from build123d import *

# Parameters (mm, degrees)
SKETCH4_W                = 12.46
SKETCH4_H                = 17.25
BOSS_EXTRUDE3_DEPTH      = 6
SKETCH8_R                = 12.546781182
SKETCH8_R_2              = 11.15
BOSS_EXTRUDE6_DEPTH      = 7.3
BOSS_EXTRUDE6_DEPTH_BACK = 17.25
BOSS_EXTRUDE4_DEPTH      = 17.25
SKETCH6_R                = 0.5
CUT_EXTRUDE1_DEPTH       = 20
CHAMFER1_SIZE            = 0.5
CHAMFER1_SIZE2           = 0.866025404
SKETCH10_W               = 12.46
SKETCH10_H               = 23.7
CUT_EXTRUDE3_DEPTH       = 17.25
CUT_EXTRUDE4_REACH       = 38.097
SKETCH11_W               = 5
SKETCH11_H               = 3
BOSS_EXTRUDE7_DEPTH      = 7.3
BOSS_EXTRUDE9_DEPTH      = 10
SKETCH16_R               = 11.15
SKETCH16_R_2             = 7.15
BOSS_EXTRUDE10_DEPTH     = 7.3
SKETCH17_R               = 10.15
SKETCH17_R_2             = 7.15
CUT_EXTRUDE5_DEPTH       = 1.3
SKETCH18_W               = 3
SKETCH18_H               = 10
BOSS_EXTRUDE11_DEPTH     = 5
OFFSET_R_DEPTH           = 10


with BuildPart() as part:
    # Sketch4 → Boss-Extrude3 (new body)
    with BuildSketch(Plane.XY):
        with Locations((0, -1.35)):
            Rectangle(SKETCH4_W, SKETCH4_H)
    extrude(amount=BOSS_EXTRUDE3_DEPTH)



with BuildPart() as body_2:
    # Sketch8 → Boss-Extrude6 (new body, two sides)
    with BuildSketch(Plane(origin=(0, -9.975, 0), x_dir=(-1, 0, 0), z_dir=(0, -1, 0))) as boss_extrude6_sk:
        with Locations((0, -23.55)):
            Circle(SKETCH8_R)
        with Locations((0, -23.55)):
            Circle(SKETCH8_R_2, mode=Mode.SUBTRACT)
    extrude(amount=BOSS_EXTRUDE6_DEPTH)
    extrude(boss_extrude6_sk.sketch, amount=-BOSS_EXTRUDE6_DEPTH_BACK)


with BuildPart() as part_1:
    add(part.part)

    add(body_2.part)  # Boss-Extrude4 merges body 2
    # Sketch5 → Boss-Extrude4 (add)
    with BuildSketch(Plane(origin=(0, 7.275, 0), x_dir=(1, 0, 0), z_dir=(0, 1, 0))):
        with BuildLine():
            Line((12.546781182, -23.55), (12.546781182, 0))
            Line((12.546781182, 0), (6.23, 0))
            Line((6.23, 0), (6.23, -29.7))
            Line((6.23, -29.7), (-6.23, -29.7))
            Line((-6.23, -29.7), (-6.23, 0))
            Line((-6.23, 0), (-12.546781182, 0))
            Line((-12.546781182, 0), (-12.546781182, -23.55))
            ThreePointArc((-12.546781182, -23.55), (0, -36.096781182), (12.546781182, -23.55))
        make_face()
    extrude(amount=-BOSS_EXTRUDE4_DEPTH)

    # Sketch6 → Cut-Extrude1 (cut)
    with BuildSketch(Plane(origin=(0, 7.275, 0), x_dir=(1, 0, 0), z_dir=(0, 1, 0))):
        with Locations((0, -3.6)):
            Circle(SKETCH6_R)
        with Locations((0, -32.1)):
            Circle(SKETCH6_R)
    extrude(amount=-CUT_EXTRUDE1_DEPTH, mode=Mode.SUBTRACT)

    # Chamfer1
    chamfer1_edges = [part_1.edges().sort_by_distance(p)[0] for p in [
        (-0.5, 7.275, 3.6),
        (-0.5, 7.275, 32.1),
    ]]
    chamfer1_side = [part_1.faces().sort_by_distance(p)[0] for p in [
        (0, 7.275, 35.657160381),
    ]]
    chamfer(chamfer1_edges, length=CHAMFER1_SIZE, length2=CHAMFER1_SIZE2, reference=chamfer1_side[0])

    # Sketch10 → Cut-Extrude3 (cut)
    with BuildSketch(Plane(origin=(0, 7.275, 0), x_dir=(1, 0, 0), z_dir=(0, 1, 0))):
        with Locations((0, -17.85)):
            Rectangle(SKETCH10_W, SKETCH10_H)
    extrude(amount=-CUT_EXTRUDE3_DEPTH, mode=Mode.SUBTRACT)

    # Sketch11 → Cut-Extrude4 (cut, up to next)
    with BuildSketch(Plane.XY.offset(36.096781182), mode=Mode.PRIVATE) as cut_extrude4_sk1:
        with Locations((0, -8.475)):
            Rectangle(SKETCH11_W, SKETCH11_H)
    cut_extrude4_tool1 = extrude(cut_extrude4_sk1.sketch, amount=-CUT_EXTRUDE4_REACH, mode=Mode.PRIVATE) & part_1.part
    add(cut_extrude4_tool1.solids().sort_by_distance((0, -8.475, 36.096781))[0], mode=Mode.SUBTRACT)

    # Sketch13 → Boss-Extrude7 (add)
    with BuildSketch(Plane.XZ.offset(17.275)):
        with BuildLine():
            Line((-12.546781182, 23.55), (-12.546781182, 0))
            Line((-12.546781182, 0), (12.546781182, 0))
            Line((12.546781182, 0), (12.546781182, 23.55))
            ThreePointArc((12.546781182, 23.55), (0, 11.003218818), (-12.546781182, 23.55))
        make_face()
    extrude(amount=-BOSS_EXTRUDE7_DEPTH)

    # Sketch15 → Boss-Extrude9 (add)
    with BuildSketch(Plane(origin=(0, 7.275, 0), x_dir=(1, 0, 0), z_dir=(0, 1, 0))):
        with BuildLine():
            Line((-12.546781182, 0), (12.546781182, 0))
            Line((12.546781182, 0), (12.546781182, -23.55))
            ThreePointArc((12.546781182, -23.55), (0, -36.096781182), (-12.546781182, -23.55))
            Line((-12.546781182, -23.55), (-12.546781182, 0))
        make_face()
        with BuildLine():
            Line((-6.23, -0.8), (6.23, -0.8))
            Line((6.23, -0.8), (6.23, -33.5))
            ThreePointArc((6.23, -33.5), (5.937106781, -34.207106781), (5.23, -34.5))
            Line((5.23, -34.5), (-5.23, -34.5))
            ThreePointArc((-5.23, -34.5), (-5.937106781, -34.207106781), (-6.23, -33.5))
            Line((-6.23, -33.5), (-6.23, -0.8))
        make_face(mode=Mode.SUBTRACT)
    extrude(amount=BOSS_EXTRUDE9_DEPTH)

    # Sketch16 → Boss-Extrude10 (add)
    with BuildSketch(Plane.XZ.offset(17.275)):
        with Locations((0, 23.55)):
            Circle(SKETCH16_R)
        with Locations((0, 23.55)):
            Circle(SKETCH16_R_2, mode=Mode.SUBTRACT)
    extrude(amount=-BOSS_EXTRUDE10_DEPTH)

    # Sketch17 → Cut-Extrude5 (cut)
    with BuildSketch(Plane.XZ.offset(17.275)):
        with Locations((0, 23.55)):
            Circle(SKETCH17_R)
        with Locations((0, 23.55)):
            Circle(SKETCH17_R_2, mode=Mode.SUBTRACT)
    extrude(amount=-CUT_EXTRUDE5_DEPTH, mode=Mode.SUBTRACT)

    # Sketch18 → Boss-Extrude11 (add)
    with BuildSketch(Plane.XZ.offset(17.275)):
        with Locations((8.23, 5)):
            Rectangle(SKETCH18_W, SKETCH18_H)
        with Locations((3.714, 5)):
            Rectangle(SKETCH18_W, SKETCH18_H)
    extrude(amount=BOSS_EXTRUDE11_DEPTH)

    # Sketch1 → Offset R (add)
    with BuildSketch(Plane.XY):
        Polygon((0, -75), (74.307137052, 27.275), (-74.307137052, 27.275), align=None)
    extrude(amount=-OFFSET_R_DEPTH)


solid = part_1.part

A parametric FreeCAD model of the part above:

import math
import FreeCAD as App
import Part
import Sketcher

V = App.Vector
Q = App.Units.Quantity


def edges_at(feature, points):
    """Names of the edges that pass closest to the given points."""
    edges = feature.Shape.Edges
    near = lambda p: min(range(len(edges)), key=lambda i: edges[i].distToShape(Part.Vertex(*p))[0])
    return sorted({f"Edge{near(p) + 1}" for p in points})


def add_polygon(sketch, points):
    """Adds a closed chain of lines whose ends are joined by coincident constraints."""
    first, n = sketch.GeometryCount, len(points)
    for a, b in zip(points, points[1:] + points[:1]):
        sketch.addGeometry(Part.LineSegment(App.Vector(*a, 0), App.Vector(*b, 0)), False)
    for i in range(n):
        sketch.addConstraint(Sketcher.Constraint("Coincident", first + i, 2, first + (i + 1) % n, 1))

doc = App.newDocument("Part")
body = doc.addObject("PartDesign::Body", "Body")

# Sketch on XY plane
sketch1 = doc.addObject("Sketcher::SketchObject", "Sketch")
body.addObject(sketch1)
sketch1.AttachmentSupport = (doc.XY_Plane, [""])
sketch1.MapMode = "FlatFace"
add_polygon(sketch1, [(-6, 7), (-6, -10), (6, -10), (6, 7)])  # lines 0-3
sketch1.addConstraint([
    Sketcher.Constraint("Vertical", 0),
    Sketcher.Constraint("Horizontal", 1),
    Sketcher.Constraint("Vertical", 2),
    Sketcher.Constraint("Horizontal", 3),
    Sketcher.Constraint("DistanceX", 1, 1, 1, 2, 12.46),
    Sketcher.Constraint("DistanceY", 0, 2, 0, 1, 17.25),
    Sketcher.Constraint("DistanceX", 0, 2, -1, 1, 6.23),
    Sketcher.Constraint("DistanceY", 0, 2, -1, 1, 9.975),
])
pad1 = doc.addObject("PartDesign::Pad", "Pad")
body.addObject(pad1)
pad1.Profile = sketch1
pad1.Length = 6
body2 = doc.addObject("PartDesign::Body", "Body001")

# Sketch on XZ plane
sketch2 = doc.addObject("Sketcher::SketchObject", "Sketch001")
body2.addObject(sketch2)
sketch2.AttachmentSupport = (doc.getObject("XZ_Plane001"), [""])
sketch2.MapMode = "FlatFace"
sketch2.AttachmentOffset = App.Placement(V(0, 0, 9.975), App.Rotation())
sketch2.addGeometry([
    Part.Circle(V(0, 24, 0), V(0, 0, 1), 13),
    Part.Circle(V(0, 24, 0), V(0, 0, 1), 11),
], False)
sketch2.addConstraint([
    Sketcher.Constraint("Coincident", 1, 3, 0, 3),
    Sketcher.Constraint("PointOnObject", 0, 3, -2),
    Sketcher.Constraint("Diameter", 1, 22.3),
    Sketcher.Constraint("DistanceY", -1, 1, 0, 3, 23.55),
    Sketcher.Constraint("Diameter", 0, 25.093562),
])
pad2 = doc.addObject("PartDesign::Pad", "Pad001")
body2.addObject(pad2)
pad2.Profile = sketch2
pad2.Type = "TwoLengths"
pad2.Length = 7.3
pad2.Length2 = 17.25
body.AllowCompound = True
doc.recompute()

boolean = doc.addObject("PartDesign::Boolean", "Boolean")
body.addObject(boolean)
boolean.Type = "Fuse"
boolean.addObjects([body2])

# Sketch on XZ plane
sketch3 = doc.addObject("Sketcher::SketchObject", "Sketch002")
body.addObject(sketch3)
sketch3.AttachmentSupport = (doc.XZ_Plane, [""])
sketch3.MapMode = "FlatFace"
sketch3.AttachmentOffset = App.Placement(V(0, 0, -7.275), App.Rotation())
sketch3.addGeometry([
    Part.LineSegment(V(13, 24, 0), V(13, 0, 0)),  # 0
    Part.LineSegment(V(13, 0, 0), V(6, 0, 0)),  # 1
    Part.LineSegment(V(6, 0, 0), V(6, 30, 0)),  # 2
    Part.LineSegment(V(6, 30, 0), V(-6, 30, 0)),  # 3
    Part.LineSegment(V(-6, 30, 0), V(-6, 0, 0)),  # 4
    Part.LineSegment(V(-6, 0, 0), V(-13, 0, 0)),  # 5
    Part.LineSegment(V(-13, 0, 0), V(-13, 24, 0)),  # 6
    Part.ArcOfCircle(Part.Circle(V(0, 24, 0), V(0, 0, 1), 13), math.radians(0), math.radians(180)),  # 7
], False)
sketch3.addConstraint([
    Sketcher.Constraint("Coincident", 0, 2, 1, 1),
    Sketcher.Constraint("Coincident", 1, 2, 2, 1),
    Sketcher.Constraint("Coincident", 2, 2, 3, 1),
    Sketcher.Constraint("Coincident", 3, 2, 4, 1),
    Sketcher.Constraint("Coincident", 4, 2, 5, 1),
    Sketcher.Constraint("Coincident", 5, 2, 6, 1),
    Sketcher.Constraint("Tangent", 6, 2, 7, 2),
    Sketcher.Constraint("Tangent", 7, 1, 0, 1),
    Sketcher.Constraint("Vertical", 0),
    Sketcher.Constraint("Horizontal", 1),
    Sketcher.Constraint("Vertical", 2),
    Sketcher.Constraint("Horizontal", 3),
    Sketcher.Constraint("Vertical", 4),
    Sketcher.Constraint("Horizontal", 5),
    Sketcher.Constraint("Vertical", 6),
    Sketcher.Constraint("Symmetric", 1, 2, 4, 2, -1, 1),
    Sketcher.Constraint("Symmetric", 0, 2, 5, 2, -2),
    Sketcher.Constraint("DistanceY", 2, 1, 2, 2, 29.7),
    Sketcher.Constraint("DistanceX", 3, 2, 3, 1, 12.46),
    Sketcher.Constraint("DistanceY", 0, 2, 0, 1, 23.55),
    Sketcher.Constraint("Radius", 7, 12.546781),
])
pad3 = doc.addObject("PartDesign::Pad", "Pad002")
body.addObject(pad3)
pad3.Profile = sketch3
pad3.Length = 17.25

# Sketch on XZ plane
sketch4 = doc.addObject("Sketcher::SketchObject", "Sketch003")
body.addObject(sketch4)
sketch4.AttachmentSupport = (doc.XZ_Plane, [""])
sketch4.MapMode = "FlatFace"
sketch4.AttachmentOffset = App.Placement(V(0, 0, -7.275), App.Rotation())
sketch4.addGeometry([
    Part.Circle(V(0, 3.6, 0), V(0, 0, 1), 0.5),
    Part.Circle(V(0, 32.1, 0), V(0, 0, 1), 0.5),
], False)
sketch4.addConstraint([
    Sketcher.Constraint("Equal", 0, 1),
    Sketcher.Constraint("PointOnObject", 0, 3, -2),
    Sketcher.Constraint("PointOnObject", 1, 3, -2),
    Sketcher.Constraint("Diameter", 0, 1.0),
    Sketcher.Constraint("DistanceY", -1, 1, 0, 3, 3.6),
    Sketcher.Constraint("DistanceY", -1, 1, 1, 3, 32.1),
])
pocket1 = doc.addObject("PartDesign::Pocket", "Pocket")
body.addObject(pocket1)
pocket1.Profile = sketch4
pocket1.Length = 20
pocket1.Reversed = True
doc.recompute()

chamfer = doc.addObject("PartDesign::Chamfer", "Chamfer")
body.addObject(chamfer)
chamfer.Base = (pocket1, edges_at(pocket1, [(-0.5, 7.275, 3.6), (-0.5, 7.275, 32.1)]))
chamfer.ChamferType = "Two distances"
chamfer.Size = 0.5
chamfer.Size2 = 0.866025

# Sketch on XZ plane
sketch5 = doc.addObject("Sketcher::SketchObject", "Sketch004")
body.addObject(sketch5)
sketch5.AttachmentSupport = (doc.XZ_Plane, [""])
sketch5.MapMode = "FlatFace"
sketch5.AttachmentOffset = App.Placement(V(0, 0, -7.275), App.Rotation())
add_polygon(sketch5, [(-6, 6), (-6, 30), (6, 30), (6, 6)])  # lines 0-3
sketch5.addConstraint([
    Sketcher.Constraint("Vertical", 0),
    Sketcher.Constraint("Horizontal", 1),
    Sketcher.Constraint("Vertical", 2),
    Sketcher.Constraint("Horizontal", 3),
    Sketcher.Constraint("DistanceY", 0, 1, 0, 2, 23.7),
    Sketcher.Constraint("DistanceY", -1, 1, 2, 2, 6.0),
    Sketcher.Constraint("DistanceX", 1, 1, 1, 2, 12.46),
    Sketcher.Constraint("DistanceX", 0, 2, -1, 1, 6.23),
])
pocket2 = doc.addObject("PartDesign::Pocket", "Pocket001")
body.addObject(pocket2)
pocket2.Profile = sketch5
pocket2.Length = 17.25
pocket2.Reversed = True

# Sketch on XY plane
sketch6 = doc.addObject("Sketcher::SketchObject", "Sketch005")
body.addObject(sketch6)
sketch6.AttachmentSupport = (doc.XY_Plane, [""])
sketch6.MapMode = "FlatFace"
sketch6.AttachmentOffset = App.Placement(V(0, 0, 36.096781), App.Rotation())
add_polygon(sketch6, [(-2.5, -7), (-2.5, -10), (2.5, -10), (2.5, -7)])  # lines 0-3
sketch6.addConstraint([
    Sketcher.Constraint("Vertical", 0),
    Sketcher.Constraint("Horizontal", 1),
    Sketcher.Constraint("Vertical", 2),
    Sketcher.Constraint("Horizontal", 3),
    Sketcher.Constraint("DistanceX", 1, 1, 1, 2, 5.0),
    Sketcher.Constraint("DistanceY", 0, 2, 0, 1, 3.0),
    Sketcher.Constraint("DistanceX", 0, 2, -1, 1, 2.5),
    Sketcher.Constraint("DistanceY", 0, 2, -1, 1, 9.975),
])
pocket3 = doc.addObject("PartDesign::Pocket", "Pocket002")
body.addObject(pocket3)
pocket3.Profile = sketch6
pocket3.Length = 6.396781

# Sketch on XZ plane
sketch7 = doc.addObject("Sketcher::SketchObject", "Sketch006")
body.addObject(sketch7)
sketch7.AttachmentSupport = (doc.XZ_Plane, [""])
sketch7.MapMode = "FlatFace"
sketch7.AttachmentOffset = App.Placement(V(0, 0, 17.275), App.Rotation())
sketch7.addGeometry([
    Part.LineSegment(V(-13, 24, 0), V(-13, 0, 0)),
    Part.LineSegment(V(-13, 0, 0), V(13, 0, 0)),
    Part.LineSegment(V(13, 0, 0), V(13, 24, 0)),
    Part.ArcOfCircle(Part.Circle(V(0, 24, 0), V(0, 0, 1), 13), math.radians(180), math.radians(360)),
], False)
sketch7.addConstraint([
    Sketcher.Constraint("Coincident", 0, 2, 1, 1),
    Sketcher.Constraint("Coincident", 1, 2, 2, 1),
    Sketcher.Constraint("Tangent", 2, 2, 3, 2),
    Sketcher.Constraint("Tangent", 3, 1, 0, 1),
    Sketcher.Constraint("Vertical", 0),
    Sketcher.Constraint("Horizontal", 1),
    Sketcher.Constraint("Vertical", 2),
    Sketcher.Constraint("Symmetric", 0, 2, 1, 2, -1, 1),
    Sketcher.Constraint("DistanceY", 0, 2, 0, 1, 23.55),
    Sketcher.Constraint("Radius", 3, 12.546781),
])
pad4 = doc.addObject("PartDesign::Pad", "Pad003")
body.addObject(pad4)
pad4.Profile = sketch7
pad4.Length = 7.3
pad4.Reversed = True

# Sketch on XZ plane
sketch8 = doc.addObject("Sketcher::SketchObject", "Sketch007")
body.addObject(sketch8)
sketch8.AttachmentSupport = (doc.XZ_Plane, [""])
sketch8.MapMode = "FlatFace"
sketch8.AttachmentOffset = App.Placement(V(0, 0, -7.275), App.Rotation())
sketch8.addGeometry([
    Part.LineSegment(V(12.5, 0, 0), V(-12.5, 0, 0)),  # 0
    Part.LineSegment(V(-12.5, 0, 0), V(-12.5, 23.6, 0)),  # 1
    Part.ArcOfCircle(Part.Circle(V(0, 23.6, 0), V(0, 0, 1), 12.5), math.radians(0), math.radians(180)),  # 2
    Part.LineSegment(V(12.5, 23.6, 0), V(12.5, 0, 0)),  # 3
    Part.LineSegment(V(-6.2, 0.8, 0), V(6.2, 0.8, 0)),  # 4
    Part.LineSegment(V(6.2, 0.8, 0), V(6.2, 33.5, 0)),  # 5
    Part.ArcOfCircle(Part.Circle(V(5.2, 33.5, 0), V(0, 0, 1), 1), math.radians(0), math.radians(90)),  # 6
    Part.LineSegment(V(5.2, 34.5, 0), V(-5.2, 34.5, 0)),  # 7
    Part.ArcOfCircle(Part.Circle(V(-5.2, 33.5, 0), V(0, 0, 1), 1), math.radians(90), math.radians(180)),  # 8
    Part.LineSegment(V(-6.2, 33.5, 0), V(-6.2, 0.8, 0)),  # 9
], False)
sketch8.addConstraint([
    Sketcher.Constraint("Coincident", 0, 2, 1, 1),
    Sketcher.Constraint("Tangent", 1, 2, 2, 2),
    Sketcher.Constraint("Tangent", 2, 1, 3, 1),
    Sketcher.Constraint("Coincident", 3, 2, 0, 1),
    Sketcher.Constraint("Coincident", 4, 2, 5, 1),
    Sketcher.Constraint("Tangent", 5, 2, 6, 1),
    Sketcher.Constraint("Tangent", 6, 2, 7, 1),
    Sketcher.Constraint("Tangent", 7, 2, 8, 1),
    Sketcher.Constraint("Tangent", 8, 2, 9, 1),
    Sketcher.Constraint("Coincident", 9, 2, 4, 1),
    Sketcher.Constraint("Horizontal", 0),
    Sketcher.Constraint("Vertical", 1),
    Sketcher.Constraint("Vertical", 3),
    Sketcher.Constraint("Horizontal", 4),
    Sketcher.Constraint("Vertical", 5),
    Sketcher.Constraint("Horizontal", 7),
    Sketcher.Constraint("Vertical", 9),
    Sketcher.Constraint("Equal", 6, 8),
    Sketcher.Constraint("Symmetric", 0, 2, 3, 2, -1, 1),
    Sketcher.Constraint("Radius", 6, 1.0),
    Sketcher.Constraint("DistanceY", 5, 1, 5, 2, 32.7),
    Sketcher.Constraint("DistanceX", 4, 1, 4, 2, 12.46),
    Sketcher.Constraint("DistanceY", 1, 1, 1, 2, 23.55),
    Sketcher.Constraint("DistanceY", -1, 1, 6, 3, 33.5),
    Sketcher.Constraint("DistanceX", -1, 1, 6, 3, 5.23),
    Sketcher.Constraint("Radius", 2, 12.546781),
])
pad5 = doc.addObject("PartDesign::Pad", "Pad004")
body.addObject(pad5)
pad5.Profile = sketch8
pad5.Length = 10
pad5.Reversed = True

# Sketch on XZ plane
sketch9 = doc.addObject("Sketcher::SketchObject", "Sketch008")
body.addObject(sketch9)
sketch9.AttachmentSupport = (doc.XZ_Plane, [""])
sketch9.MapMode = "FlatFace"
sketch9.AttachmentOffset = App.Placement(V(0, 0, 17.275), App.Rotation())
sketch9.addGeometry([
    Part.Circle(V(0, 24, 0), V(0, 0, 1), 11),
    Part.Circle(V(0, 24, 0), V(0, 0, 1), 7),
], False)
sketch9.addConstraint([
    Sketcher.Constraint("Coincident", 1, 3, 0, 3),
    Sketcher.Constraint("PointOnObject", 0, 3, -2),
    Sketcher.Constraint("Diameter", 0, 22.3),
    Sketcher.Constraint("Diameter", 1, 14.3),
    Sketcher.Constraint("DistanceY", -1, 1, 0, 3, 23.55),
])
pad6 = doc.addObject("PartDesign::Pad", "Pad005")
body.addObject(pad6)
pad6.Profile = sketch9
pad6.Length = 7.3
pad6.Reversed = True

# Sketch on XZ plane
sketch10 = doc.addObject("Sketcher::SketchObject", "Sketch009")
body.addObject(sketch10)
sketch10.AttachmentSupport = (doc.XZ_Plane, [""])
sketch10.MapMode = "FlatFace"
sketch10.AttachmentOffset = App.Placement(V(0, 0, 17.275), App.Rotation())
sketch10.addGeometry([
    Part.Circle(V(0, 24, 0), V(0, 0, 1), 10),
    Part.Circle(V(0, 24, 0), V(0, 0, 1), 7),
], False)
sketch10.addConstraint([
    Sketcher.Constraint("Coincident", 1, 3, 0, 3),
    Sketcher.Constraint("PointOnObject", 0, 3, -2),
    Sketcher.Constraint("Diameter", 0, 20.3),
    Sketcher.Constraint("Diameter", 1, 14.3),
    Sketcher.Constraint("DistanceY", -1, 1, 0, 3, 23.55),
])
pocket4 = doc.addObject("PartDesign::Pocket", "Pocket003")
body.addObject(pocket4)
pocket4.Profile = sketch10
pocket4.Length = 1.3

# Sketch on XZ plane
sketch11 = doc.addObject("Sketcher::SketchObject", "Sketch010")
body.addObject(sketch11)
sketch11.AttachmentSupport = (doc.XZ_Plane, [""])
sketch11.MapMode = "FlatFace"
sketch11.AttachmentOffset = App.Placement(V(0, 0, 17.275), App.Rotation())
add_polygon(sketch11, [(6.7, 10), (6.7, 0), (9.7, 0), (9.7, 10)])  # lines 0-3
add_polygon(sketch11, [(2.2, 10), (2.2, 0), (5.2, 0), (5.2, 10)])  # lines 4-7
sketch11.addConstraint([
    Sketcher.Constraint("Vertical", 0),
    Sketcher.Constraint("Horizontal", 1),
    Sketcher.Constraint("Vertical", 2),
    Sketcher.Constraint("Horizontal", 3),
    Sketcher.Constraint("Vertical", 4),
    Sketcher.Constraint("Horizontal", 5),
    Sketcher.Constraint("Vertical", 6),
    Sketcher.Constraint("Horizontal", 7),
    Sketcher.Constraint("PointOnObject", 0, 2, -1),
    Sketcher.Constraint("PointOnObject", 4, 2, -1),
    Sketcher.Constraint("Horizontal", 3, 2, 6, 2),
    Sketcher.Constraint("Equal", 3, 5),
    Sketcher.Constraint("DistanceX", 1, 1, 1, 2, 3.0),
    Sketcher.Constraint("DistanceY", 0, 2, 0, 1, 10.0),
    Sketcher.Constraint("DistanceX", -1, 1, 0, 2, 6.73),
    Sketcher.Constraint("DistanceX", -1, 1, 4, 2, 2.214),
])
pad7 = doc.addObject("PartDesign::Pad", "Pad006")
body.addObject(pad7)
pad7.Profile = sketch11
pad7.Length = 5

# Sketch on XY plane
sketch12 = doc.addObject("Sketcher::SketchObject", "Sketch011")
body.addObject(sketch12)
sketch12.AttachmentSupport = (doc.XY_Plane, [""])
sketch12.MapMode = "FlatFace"
add_polygon(sketch12, [(0, -75), (74, 27), (-74, 27)])  # lines 0-2
sketch12.addConstraint([
    Sketcher.Constraint("Horizontal", 1),
    Sketcher.Constraint("PointOnObject", 2, 2, -2),
    Sketcher.Constraint("Equal", 0, 2),
    Sketcher.Constraint("Angle", 0, Q("54 deg")),
    Sketcher.Constraint("DistanceY", 2, 2, -1, 1, 75.0),
    Sketcher.Constraint("DistanceY", -1, 1, 0, 2, 27.275),
])
pad8 = doc.addObject("PartDesign::Pad", "Pad007")
body.addObject(pad8)
pad8.Profile = sketch12
pad8.Length = 10
pad8.Reversed = True

doc.recompute()
